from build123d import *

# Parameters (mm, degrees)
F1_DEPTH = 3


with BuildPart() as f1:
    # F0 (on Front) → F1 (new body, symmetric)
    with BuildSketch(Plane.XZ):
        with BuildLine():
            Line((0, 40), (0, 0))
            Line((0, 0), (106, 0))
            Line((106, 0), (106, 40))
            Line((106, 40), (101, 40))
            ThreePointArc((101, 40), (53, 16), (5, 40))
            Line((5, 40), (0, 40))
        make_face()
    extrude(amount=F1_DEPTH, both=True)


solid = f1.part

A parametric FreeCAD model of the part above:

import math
import FreeCAD as App
import Part
import Sketcher

V = App.Vector

doc = App.newDocument("Part")
body = doc.addObject("PartDesign::Body", "Body")

# Sketch on XZ plane
sketch1 = doc.addObject("Sketcher::SketchObject", "Sketch")
body.addObject(sketch1)
sketch1.AttachmentSupport = (doc.XZ_Plane, [""])
sketch1.MapMode = "FlatFace"
sketch1.addGeometry([
    Part.LineSegment(V(0, 40, 0), V(0, 0, 0)),  # 0
    Part.LineSegment(V(0, 0, 0), V(106, 0, 0)),  # 1
    Part.LineSegment(V(106, 0, 0), V(106, 40, 0)),  # 2
    Part.LineSegment(V(106, 40, 0), V(101, 40, 0)),  # 3
    Part.ArcOfCircle(Part.Circle(V(53, 76, 0), V(0, 0, 1), 60), math.radians(-143), math.radians(-37)),  # 4
    Part.LineSegment(V(5, 40, 0), V(0, 40, 0)),  # 5
], False)
sketch1.addConstraint([
    Sketcher.Constraint("Coincident", 0, 2, 1, 1),
    Sketcher.Constraint("Coincident", 1, 2, 2, 1),
    Sketcher.Constraint("Coincident", 2, 2, 3, 1),
    Sketcher.Constraint("Coincident", 3, 2, 4, 2),
    Sketcher.Constraint("Coincident", 4, 1, 5, 1),
    Sketcher.Constraint("Coincident", 5, 2, 0, 1),
    Sketcher.Constraint("Vertical", 0),
    Sketcher.Constraint("Horizontal", 1),
    Sketcher.Constraint("Vertical", 2),
    Sketcher.Constraint("Horizontal", 3),
    Sketcher.Constraint("Horizontal", 5),
    Sketcher.Constraint("Coincident", 0, 2, -1, 1),
    Sketcher.Constraint("Horizontal", 3, 2, 4, 1),
    Sketcher.Constraint("Equal", 3, 5),
    Sketcher.Constraint("Radius", 4, 60.0),
    Sketcher.Constraint("DistanceX", 1, 1, 1, 2, 106.0),
    Sketcher.Constraint("DistanceX", 3, 2, 3, 1, 5.0),
    Sketcher.Constraint("DistanceY", 0, 2, 0, 1, 40.0),
])
pad1 = doc.addObject("PartDesign::Pad", "Pad")
body.addObject(pad1)
pad1.Profile = sketch1
pad1.Length = 6
pad1.Midplane = True

doc.recompute()
